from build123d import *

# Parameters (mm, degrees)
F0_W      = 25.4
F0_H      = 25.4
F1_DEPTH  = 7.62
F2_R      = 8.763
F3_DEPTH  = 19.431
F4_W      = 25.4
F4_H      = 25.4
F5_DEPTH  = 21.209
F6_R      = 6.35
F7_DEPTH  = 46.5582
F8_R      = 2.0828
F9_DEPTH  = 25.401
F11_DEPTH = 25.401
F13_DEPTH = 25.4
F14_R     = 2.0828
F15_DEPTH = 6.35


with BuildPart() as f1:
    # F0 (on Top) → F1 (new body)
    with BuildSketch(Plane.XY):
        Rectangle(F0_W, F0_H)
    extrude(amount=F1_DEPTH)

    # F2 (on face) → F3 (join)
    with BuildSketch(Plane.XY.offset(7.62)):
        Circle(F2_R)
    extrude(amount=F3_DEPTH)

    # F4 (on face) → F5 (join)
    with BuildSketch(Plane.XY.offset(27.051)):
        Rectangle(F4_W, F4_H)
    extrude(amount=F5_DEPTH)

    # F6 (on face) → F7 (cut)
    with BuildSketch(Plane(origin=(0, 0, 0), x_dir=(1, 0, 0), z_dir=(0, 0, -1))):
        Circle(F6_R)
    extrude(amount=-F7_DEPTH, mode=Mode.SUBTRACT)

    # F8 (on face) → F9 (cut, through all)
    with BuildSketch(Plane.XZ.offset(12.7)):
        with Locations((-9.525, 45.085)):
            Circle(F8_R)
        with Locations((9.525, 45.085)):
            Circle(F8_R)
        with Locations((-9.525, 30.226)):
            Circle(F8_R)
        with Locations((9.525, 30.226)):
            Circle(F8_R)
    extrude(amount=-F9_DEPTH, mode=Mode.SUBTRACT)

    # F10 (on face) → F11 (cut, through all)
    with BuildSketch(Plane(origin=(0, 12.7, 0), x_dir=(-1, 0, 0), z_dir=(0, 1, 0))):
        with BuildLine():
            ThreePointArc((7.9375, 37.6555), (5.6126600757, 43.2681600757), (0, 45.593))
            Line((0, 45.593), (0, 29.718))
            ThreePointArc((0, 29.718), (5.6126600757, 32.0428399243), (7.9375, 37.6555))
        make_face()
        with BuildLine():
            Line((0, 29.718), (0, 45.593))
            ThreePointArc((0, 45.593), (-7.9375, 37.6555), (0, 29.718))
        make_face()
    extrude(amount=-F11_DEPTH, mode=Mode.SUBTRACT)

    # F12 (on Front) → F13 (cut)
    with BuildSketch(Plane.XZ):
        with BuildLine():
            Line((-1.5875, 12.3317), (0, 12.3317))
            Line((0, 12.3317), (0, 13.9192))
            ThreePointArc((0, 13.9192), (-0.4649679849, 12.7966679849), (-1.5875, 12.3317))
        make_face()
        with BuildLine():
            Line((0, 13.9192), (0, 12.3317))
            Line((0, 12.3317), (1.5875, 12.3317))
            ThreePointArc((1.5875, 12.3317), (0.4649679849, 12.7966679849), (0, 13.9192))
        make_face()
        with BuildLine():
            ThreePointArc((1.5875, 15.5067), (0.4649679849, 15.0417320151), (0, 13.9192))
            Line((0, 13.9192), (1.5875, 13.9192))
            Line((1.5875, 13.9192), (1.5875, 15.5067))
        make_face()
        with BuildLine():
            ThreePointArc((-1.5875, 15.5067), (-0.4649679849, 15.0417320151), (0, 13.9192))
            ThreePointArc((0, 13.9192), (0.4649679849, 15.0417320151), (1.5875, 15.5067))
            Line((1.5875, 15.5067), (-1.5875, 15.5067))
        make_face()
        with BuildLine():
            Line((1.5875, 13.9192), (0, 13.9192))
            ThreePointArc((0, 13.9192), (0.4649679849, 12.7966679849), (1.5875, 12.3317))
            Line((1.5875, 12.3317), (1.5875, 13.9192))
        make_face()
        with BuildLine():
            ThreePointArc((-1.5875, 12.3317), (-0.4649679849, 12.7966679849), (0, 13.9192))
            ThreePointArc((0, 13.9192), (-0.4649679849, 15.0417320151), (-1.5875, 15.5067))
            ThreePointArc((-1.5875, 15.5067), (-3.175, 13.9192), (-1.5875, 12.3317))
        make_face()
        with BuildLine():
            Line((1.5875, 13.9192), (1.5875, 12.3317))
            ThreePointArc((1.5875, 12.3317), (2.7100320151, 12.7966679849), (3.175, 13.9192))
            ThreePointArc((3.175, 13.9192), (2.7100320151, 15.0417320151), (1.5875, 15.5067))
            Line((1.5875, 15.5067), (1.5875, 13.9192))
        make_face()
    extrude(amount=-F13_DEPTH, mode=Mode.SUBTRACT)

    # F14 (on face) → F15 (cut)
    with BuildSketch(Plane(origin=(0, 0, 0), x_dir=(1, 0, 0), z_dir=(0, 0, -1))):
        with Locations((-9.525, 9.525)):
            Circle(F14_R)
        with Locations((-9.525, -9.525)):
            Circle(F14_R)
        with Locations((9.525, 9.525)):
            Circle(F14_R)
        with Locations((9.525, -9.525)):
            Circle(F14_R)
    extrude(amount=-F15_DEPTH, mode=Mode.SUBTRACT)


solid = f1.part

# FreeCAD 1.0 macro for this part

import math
import FreeCAD as App
import Part
import Sketcher

V = App.Vector
Q = App.Units.Quantity

doc = App.newDocument("Part")
body = doc.addObject("PartDesign::Body", "Body")

# Sketch on XY plane
sketch1 = body.newObject("Sketcher::SketchObject", "Sketch")
sketch1.AttachmentSupport = (doc.getObject("XY_Plane"), [""])
sketch1.MapMode = "FlatFace"
sketch1.addGeometry(Part.LineSegment(V(-13, 13, 0), V(-13, -13, 0)), False)
sketch1.addGeometry(Part.LineSegment(V(-13, -13, 0), V(13, -13, 0)), False)
sketch1.addGeometry(Part.LineSegment(V(13, -13, 0), V(13, 13, 0)), False)
sketch1.addGeometry(Part.LineSegment(V(13, 13, 0), V(-13, 13, 0)), False)
sketch1.addConstraint(Sketcher.Constraint("Coincident", 0, 2, 1, 1))
sketch1.addConstraint(Sketcher.Constraint("Coincident", 1, 2, 2, 1))
sketch1.addConstraint(Sketcher.Constraint("Coincident", 2, 2, 3, 1))
sketch1.addConstraint(Sketcher.Constraint("Coincident", 3, 2, 0, 1))
sketch1.addConstraint(Sketcher.Constraint("Vertical", 0))
sketch1.addConstraint(Sketcher.Constraint("Horizontal", 1))
sketch1.addConstraint(Sketcher.Constraint("Vertical", 2))
sketch1.addConstraint(Sketcher.Constraint("Horizontal", 3))
sketch1.addConstraint(Sketcher.Constraint("Symmetric", 0, 2, 2, 2, -1, 1))
sketch1.addConstraint(Sketcher.Constraint("Equal", 3, 0))
sketch1.addConstraint(Sketcher.Constraint("DistanceX", 1, 1, 1, 2, Q("1 in")))
pad1 = body.newObject("PartDesign::Pad", "Pad")
pad1.Profile = sketch1
pad1.Length = Q("0.3 in")

# Sketch on XY plane
sketch2 = body.newObject("Sketcher::SketchObject", "Sketch001")
sketch2.AttachmentSupport = (doc.getObject("XY_Plane"), [""])
sketch2.MapMode = "FlatFace"
sketch2.AttachmentOffset = App.Placement(V(0, 0, 0.3 * 25.4), App.Rotation())
sketch2.addGeometry(Part.Circle(V(0, 0, 0), V(0, 0, 1), 9), False)
sketch2.addConstraint(Sketcher.Constraint("Coincident", 0, 3, -1, 1))
sketch2.addConstraint(Sketcher.Constraint("Diameter", 0, Q("0.69 in")))
pad2 = body.newObject("PartDesign::Pad", "Pad001")
pad2.Profile = sketch2
pad2.Length = Q("0.765 in")

# Sketch on XY plane
sketch3 = body.newObject("Sketcher::SketchObject", "Sketch002")
sketch3.AttachmentSupport = (doc.getObject("XY_Plane"), [""])
sketch3.MapMode = "FlatFace"
sketch3.AttachmentOffset = App.Placement(V(0, 0, 1.065 * 25.4), App.Rotation())
sketch3.addGeometry(Part.LineSegment(V(-13, 13, 0), V(-13, -13, 0)), False)
sketch3.addGeometry(Part.LineSegment(V(-13, -13, 0), V(13, -13, 0)), False)
sketch3.addGeometry(Part.LineSegment(V(13, -13, 0), V(13, 13, 0)), False)
sketch3.addGeometry(Part.LineSegment(V(13, 13, 0), V(-13, 13, 0)), False)
sketch3.addConstraint(Sketcher.Constraint("Coincident", 0, 2, 1, 1))
sketch3.addConstraint(Sketcher.Constraint("Coincident", 1, 2, 2, 1))
sketch3.addConstraint(Sketcher.Constraint("Coincident", 2, 2, 3, 1))
sketch3.addConstraint(Sketcher.Constraint("Coincident", 3, 2, 0, 1))
sketch3.addConstraint(Sketcher.Constraint("Vertical", 0))
sketch3.addConstraint(Sketcher.Constraint("Horizontal", 1))
sketch3.addConstraint(Sketcher.Constraint("Vertical", 2))
sketch3.addConstraint(Sketcher.Constraint("Horizontal", 3))
sketch3.addConstraint(Sketcher.Constraint("Symmetric", 0, 2, 2, 2, -1, 1))
sketch3.addConstraint(Sketcher.Constraint("Equal", 3, 0))
sketch3.addConstraint(Sketcher.Constraint("DistanceX", 1, 1, 1, 2, Q("1 in")))
pad3 = body.newObject("PartDesign::Pad", "Pad002")
pad3.Profile = sketch3
pad3.Length = Q("0.835 in")

# Sketch on XY plane
sketch4 = body.newObject("Sketcher::SketchObject", "Sketch003")
sketch4.AttachmentSupport = (doc.getObject("XY_Plane"), [""])
sketch4.MapMode = "FlatFace"
sketch4.addGeometry(Part.Circle(V(0, 0, 0), V(0, 0, 1), 6), False)
sketch4.addConstraint(Sketcher.Constraint("Coincident", 0, 3, -1, 1))
sketch4.addConstraint(Sketcher.Constraint("Diameter", 0, Q("0.5 in")))
pocket1 = body.newObject("PartDesign::Pocket", "Pocket")
pocket1.Profile = sketch4
pocket1.Length = Q("1.833 in")
pocket1.Reversed = True

# Sketch on XZ plane
sketch5 = body.newObject("Sketcher::SketchObject", "Sketch004")
sketch5.AttachmentSupport = (doc.getObject("XZ_Plane"), [""])
sketch5.MapMode = "FlatFace"
sketch5.AttachmentOffset = App.Placement(V(0, 0, 0.5 * 25.4), App.Rotation())
sketch5.addGeometry(Part.Circle(V(-9.5, 45.1, 0), V(0, 0, 1), 2.1), False)
sketch5.addGeometry(Part.Circle(V(9.5, 45.1, 0), V(0, 0, 1), 2.1), False)
sketch5.addGeometry(Part.Circle(V(-9.5, 30.2, 0), V(0, 0, 1), 2.1), False)
sketch5.addGeometry(Part.Circle(V(9.5, 30.2, 0), V(0, 0, 1), 2.1), False)
sketch5.addConstraint(Sketcher.Constraint("Equal", 0, 1))
sketch5.addConstraint(Sketcher.Constraint("Equal", 1, 2))
sketch5.addConstraint(Sketcher.Constraint("Equal", 2, 3))
sketch5.addConstraint(Sketcher.Constraint("Symmetric", 0, 3, 1, 3, -2))
sketch5.addConstraint(Sketcher.Constraint("Symmetric", 2, 3, 3, 3, -2))
sketch5.addConstraint(Sketcher.Constraint("Vertical", 0, 3, 2, 3))
sketch5.addConstraint(Sketcher.Constraint("Diameter", 0, Q("0.164 in")))
sketch5.addConstraint(Sketcher.Constraint("DistanceY", -1, 1, 2, 3, Q("1.19 in")))
sketch5.addConstraint(Sketcher.Constraint("DistanceX", 0, 3, 1, 3, Q("0.75 in")))
sketch5.addConstraint(Sketcher.Constraint("DistanceY", -1, 1, 0, 3, Q("1.775 in")))
pocket2 = body.newObject("PartDesign::Pocket", "Pocket001")
pocket2.Profile = sketch5
pocket2.Type = "ThroughAll"

# Sketch on XZ plane
sketch6 = body.newObject("Sketcher::SketchObject", "Sketch005")
sketch6.AttachmentSupport = (doc.getObject("XZ_Plane"), [""])
sketch6.MapMode = "FlatFace"
sketch6.AttachmentOffset = App.Placement(V(0, 0, -0.5 * 25.4), App.Rotation())
sketch6.addGeometry(Part.ArcOfCircle(Part.Circle(V(0, 38, 0), V(0, 0, 1), 8), math.radians(90), math.radians(180)), False)
sketch6.addGeometry(Part.ArcOfCircle(Part.Circle(V(0, 38, 0), V(0, 0, 1), 8), math.radians(-90), math.radians(90)), False)
sketch6.addGeometry(Part.ArcOfCircle(Part.Circle(V(0, 38, 0), V(0, 0, 1), 8), math.radians(180), math.radians(270)), False)
sketch6.addConstraint(Sketcher.Constraint("Tangent", 0, 1, 1, 2))
sketch6.addConstraint(Sketcher.Constraint("Tangent", 1, 1, 2, 2))
sketch6.addConstraint(Sketcher.Constraint("Tangent", 2, 1, 0, 2))
sketch6.addConstraint(Sketcher.Constraint("PointOnObject", 0, 3, -2))
sketch6.addConstraint(Sketcher.Constraint("PointOnObject", 0, 1, -2))
sketch6.addConstraint(Sketcher.Constraint("PointOnObject", 1, 1, -2))
sketch6.addConstraint(Sketcher.Constraint("Horizontal", 1, 3, 2, 1))
sketch6.addConstraint(Sketcher.Constraint("Radius", 0, Q("0.3125 in")))
sketch6.addConstraint(Sketcher.Constraint("DistanceY", -1, 1, 1, 1, Q("1.17 in")))
pocket3 = body.newObject("PartDesign::Pocket", "Pocket002")
pocket3.Profile = sketch6
pocket3.Type = "ThroughAll"
pocket3.Reversed = True

# Sketch on XZ plane
sketch7 = body.newObject("Sketcher::SketchObject", "Sketch006")
sketch7.AttachmentSupport = (doc.getObject("XZ_Plane"), [""])
sketch7.MapMode = "FlatFace"
sketch7.addGeometry(Part.LineSegment(V(-1.6, 12.3, 0), V(1.6, 12.3, 0)), False)
sketch7.addGeometry(Part.ArcOfCircle(Part.Circle(V(1.6, 13.9, 0), V(0, 0, 1), 1.6), math.radians(-90), math.radians(0)), False)
sketch7.addGeometry(Part.ArcOfCircle(Part.Circle(V(1.6, 13.9, 0), V(0, 0, 1), 1.6), math.radians(0), math.radians(90)), False)
sketch7.addGeometry(Part.LineSegment(V(1.6, 15.5, 0), V(-1.6, 15.5, 0)), False)
sketch7.addGeometry(Part.ArcOfCircle(Part.Circle(V(-1.6, 13.9, 0), V(0, 0, 1), 1.6), math.radians(90), math.radians(270)), False)
sketch7.addConstraint(Sketcher.Constraint("Tangent", 0, 2, 1, 1))
sketch7.addConstraint(Sketcher.Constraint("Tangent", 1, 2, 2, 1))
sketch7.addConstraint(Sketcher.Constraint("Tangent", 2, 2, 3, 1))
sketch7.addConstraint(Sketcher.Constraint("Tangent", 3, 2, 4, 1))
sketch7.addConstraint(Sketcher.Constraint("Tangent", 4, 2, 0, 1))
sketch7.addConstraint(Sketcher.Constraint("Horizontal", 0))
sketch7.addConstraint(Sketcher.Constraint("Horizontal", 3))
sketch7.addConstraint(Sketcher.Constraint("Equal", 1, 2))
sketch7.addConstraint(Sketcher.Constraint("Horizontal", 4, 3, 1, 2))
sketch7.addConstraint(Sketcher.Constraint("Radius", 1, Q("0.0625 in")))
sketch7.addConstraint(Sketcher.Constraint("DistanceX", 0, 1, 0, 2, Q("0.125 in")))
sketch7.addConstraint(Sketcher.Constraint("DistanceX", -1, 1, 1, 3, Q("0.0625 in")))
sketch7.addConstraint(Sketcher.Constraint("DistanceY", -1, 1, 1, 3, Q("0.548 in")))
pocket4 = body.newObject("PartDesign::Pocket", "Pocket003")
pocket4.Profile = sketch7
pocket4.Length = Q("1 in")

# Sketch on XY plane
sketch8 = body.newObject("Sketcher::SketchObject", "Sketch007")
sketch8.AttachmentSupport = (doc.getObject("XY_Plane"), [""])
sketch8.MapMode = "FlatFace"
sketch8.addGeometry(Part.Circle(V(-9.5, -9.5, 0), V(0, 0, 1), 2.1), False)
sketch8.addGeometry(Part.Circle(V(-9.5, 9.5, 0), V(0, 0, 1), 2.1), False)
sketch8.addGeometry(Part.Circle(V(9.5, -9.5, 0), V(0, 0, 1), 2.1), False)
sketch8.addGeometry(Part.Circle(V(9.5, 9.5, 0), V(0, 0, 1), 2.1), False)
sketch8.addConstraint(Sketcher.Constraint("Equal", 0, 1))
sketch8.addConstraint(Sketcher.Constraint("Equal", 1, 2))
sketch8.addConstraint(Sketcher.Constraint("Equal", 2, 3))
sketch8.addConstraint(Sketcher.Constraint("Symmetric", 1, 3, 2, 3, -1, 1))
sketch8.addConstraint(Sketcher.Constraint("Symmetric", 0, 3, 3, 3, -1, 1))
sketch8.addConstraint(Sketcher.Constraint("Symmetric", 0, 3, 2, 3, -2))
sketch8.addConstraint(Sketcher.Constraint("Diameter", 0, Q("0.164 in")))
sketch8.addConstraint(Sketcher.Constraint("DistanceY", 0, 3, 1, 3, Q("0.75 in")))
sketch8.addConstraint(Sketcher.Constraint("DistanceX", 0, 3, 2, 3, Q("0.75 in")))
pocket5 = body.newObject("PartDesign::Pocket", "Pocket004")
pocket5.Profile = sketch8
pocket5.Length = Q("0.25 in")
pocket5.Reversed = True

doc.recompute()
